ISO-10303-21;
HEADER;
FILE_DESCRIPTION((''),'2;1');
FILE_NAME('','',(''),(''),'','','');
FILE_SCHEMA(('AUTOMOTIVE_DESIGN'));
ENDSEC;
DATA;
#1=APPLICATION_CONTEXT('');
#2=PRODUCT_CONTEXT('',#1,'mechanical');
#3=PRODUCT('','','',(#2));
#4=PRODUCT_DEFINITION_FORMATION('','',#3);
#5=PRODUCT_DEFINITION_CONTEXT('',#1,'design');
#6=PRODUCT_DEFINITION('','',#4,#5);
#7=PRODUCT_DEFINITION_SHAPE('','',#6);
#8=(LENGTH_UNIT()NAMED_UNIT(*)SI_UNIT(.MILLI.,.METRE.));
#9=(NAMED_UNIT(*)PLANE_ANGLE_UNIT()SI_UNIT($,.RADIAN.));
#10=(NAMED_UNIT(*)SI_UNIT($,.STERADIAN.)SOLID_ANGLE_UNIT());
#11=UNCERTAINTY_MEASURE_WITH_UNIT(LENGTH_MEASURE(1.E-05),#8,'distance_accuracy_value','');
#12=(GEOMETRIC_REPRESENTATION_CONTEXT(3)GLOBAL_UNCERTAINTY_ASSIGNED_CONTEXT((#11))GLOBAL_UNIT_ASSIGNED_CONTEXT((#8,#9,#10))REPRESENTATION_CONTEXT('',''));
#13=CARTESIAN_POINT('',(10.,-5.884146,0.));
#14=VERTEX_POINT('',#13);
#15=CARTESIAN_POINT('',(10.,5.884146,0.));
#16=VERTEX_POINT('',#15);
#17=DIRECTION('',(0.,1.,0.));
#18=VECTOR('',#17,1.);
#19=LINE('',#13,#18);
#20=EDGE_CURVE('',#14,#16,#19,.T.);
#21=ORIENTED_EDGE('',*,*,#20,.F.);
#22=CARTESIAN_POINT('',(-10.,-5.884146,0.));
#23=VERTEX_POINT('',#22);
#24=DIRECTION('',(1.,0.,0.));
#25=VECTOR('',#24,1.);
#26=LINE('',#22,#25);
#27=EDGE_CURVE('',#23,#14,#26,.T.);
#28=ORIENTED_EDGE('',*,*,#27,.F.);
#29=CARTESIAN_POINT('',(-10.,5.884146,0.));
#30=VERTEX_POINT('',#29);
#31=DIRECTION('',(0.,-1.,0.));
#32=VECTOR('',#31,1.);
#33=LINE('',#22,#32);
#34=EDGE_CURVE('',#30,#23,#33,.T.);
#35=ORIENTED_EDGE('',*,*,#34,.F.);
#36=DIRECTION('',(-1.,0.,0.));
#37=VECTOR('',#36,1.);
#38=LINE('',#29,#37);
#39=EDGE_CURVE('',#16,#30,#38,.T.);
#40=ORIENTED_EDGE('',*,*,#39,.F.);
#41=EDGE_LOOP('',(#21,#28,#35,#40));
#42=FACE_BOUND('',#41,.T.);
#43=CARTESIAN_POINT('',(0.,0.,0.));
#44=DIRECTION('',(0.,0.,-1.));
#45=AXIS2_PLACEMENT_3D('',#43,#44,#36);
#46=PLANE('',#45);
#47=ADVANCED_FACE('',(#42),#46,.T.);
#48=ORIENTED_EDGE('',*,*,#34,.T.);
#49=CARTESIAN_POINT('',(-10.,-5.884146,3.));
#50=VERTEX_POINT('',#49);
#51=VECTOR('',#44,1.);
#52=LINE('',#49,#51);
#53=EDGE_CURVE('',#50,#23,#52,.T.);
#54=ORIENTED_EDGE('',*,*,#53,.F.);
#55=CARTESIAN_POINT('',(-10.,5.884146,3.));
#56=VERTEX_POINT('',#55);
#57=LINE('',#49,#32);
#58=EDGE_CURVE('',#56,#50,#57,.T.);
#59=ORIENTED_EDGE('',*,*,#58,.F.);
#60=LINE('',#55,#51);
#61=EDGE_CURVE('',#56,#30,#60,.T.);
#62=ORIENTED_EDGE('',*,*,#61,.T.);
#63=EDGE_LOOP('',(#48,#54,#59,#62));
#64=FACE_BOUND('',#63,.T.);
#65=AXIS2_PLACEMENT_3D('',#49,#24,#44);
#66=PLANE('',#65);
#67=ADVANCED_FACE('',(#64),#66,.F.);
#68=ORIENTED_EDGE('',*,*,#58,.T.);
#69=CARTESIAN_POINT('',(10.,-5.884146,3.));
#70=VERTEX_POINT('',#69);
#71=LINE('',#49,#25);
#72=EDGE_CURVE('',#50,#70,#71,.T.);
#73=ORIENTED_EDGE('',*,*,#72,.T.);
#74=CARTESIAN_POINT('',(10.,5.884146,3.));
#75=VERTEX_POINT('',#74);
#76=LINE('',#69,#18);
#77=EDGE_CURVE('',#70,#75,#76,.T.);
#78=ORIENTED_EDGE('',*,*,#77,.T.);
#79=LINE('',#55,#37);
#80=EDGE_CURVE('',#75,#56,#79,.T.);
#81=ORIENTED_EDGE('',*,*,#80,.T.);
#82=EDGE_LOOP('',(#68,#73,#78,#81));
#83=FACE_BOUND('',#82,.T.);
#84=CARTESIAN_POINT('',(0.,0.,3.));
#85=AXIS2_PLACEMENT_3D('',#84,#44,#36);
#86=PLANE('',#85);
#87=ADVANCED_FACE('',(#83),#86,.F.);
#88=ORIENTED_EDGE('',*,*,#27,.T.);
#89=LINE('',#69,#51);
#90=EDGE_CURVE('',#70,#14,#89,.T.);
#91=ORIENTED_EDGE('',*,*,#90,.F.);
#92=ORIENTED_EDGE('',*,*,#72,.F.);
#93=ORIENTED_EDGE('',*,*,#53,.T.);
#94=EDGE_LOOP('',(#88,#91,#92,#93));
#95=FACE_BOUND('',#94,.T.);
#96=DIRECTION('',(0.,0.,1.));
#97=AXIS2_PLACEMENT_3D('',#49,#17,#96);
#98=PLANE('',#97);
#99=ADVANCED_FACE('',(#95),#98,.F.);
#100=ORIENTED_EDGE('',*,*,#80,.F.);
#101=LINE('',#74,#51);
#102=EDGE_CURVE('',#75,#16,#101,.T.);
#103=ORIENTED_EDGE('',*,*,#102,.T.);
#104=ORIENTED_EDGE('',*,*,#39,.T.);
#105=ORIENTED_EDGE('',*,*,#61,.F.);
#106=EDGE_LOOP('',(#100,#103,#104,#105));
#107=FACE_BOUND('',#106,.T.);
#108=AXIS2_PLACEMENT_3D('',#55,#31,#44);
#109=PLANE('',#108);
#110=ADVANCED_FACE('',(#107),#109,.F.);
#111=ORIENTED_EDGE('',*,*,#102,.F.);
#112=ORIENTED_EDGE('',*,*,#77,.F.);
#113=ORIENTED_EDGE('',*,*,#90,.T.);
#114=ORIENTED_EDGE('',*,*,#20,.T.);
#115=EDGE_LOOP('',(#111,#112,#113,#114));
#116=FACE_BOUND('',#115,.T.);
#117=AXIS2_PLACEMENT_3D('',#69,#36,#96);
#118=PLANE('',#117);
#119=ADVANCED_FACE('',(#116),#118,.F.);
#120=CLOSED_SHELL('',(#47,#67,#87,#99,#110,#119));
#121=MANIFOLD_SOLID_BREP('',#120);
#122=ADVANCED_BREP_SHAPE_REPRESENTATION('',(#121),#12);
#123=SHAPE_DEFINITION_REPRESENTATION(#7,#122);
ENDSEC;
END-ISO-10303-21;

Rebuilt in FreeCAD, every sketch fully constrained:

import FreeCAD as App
import Part
import Sketcher

V = App.Vector


def add_polygon(sketch, points):
    """Adds a closed chain of lines whose ends are joined by coincident constraints."""
    first, n = sketch.GeometryCount, len(points)
    for a, b in zip(points, points[1:] + points[:1]):
        sketch.addGeometry(Part.LineSegment(App.Vector(*a, 0), App.Vector(*b, 0)), False)
    for i in range(n):
        sketch.addConstraint(Sketcher.Constraint("Coincident", first + i, 2, first + (i + 1) % n, 1))

doc = App.newDocument("Part")
body = doc.addObject("PartDesign::Body", "Body")

# Sketch on XY plane
sketch1 = body.newObject("Sketcher::SketchObject", "Sketch")
sketch1.AttachmentSupport = (doc.getObject("XY_Plane"), [""])
sketch1.MapMode = "FlatFace"
add_polygon(sketch1, [(-10, 6), (-10, -6), (10, -6), (10, 6)])  # lines 0-3
sketch1.addConstraint(Sketcher.Constraint("Vertical", 0))
sketch1.addConstraint(Sketcher.Constraint("Horizontal", 1))
sketch1.addConstraint(Sketcher.Constraint("Vertical", 2))
sketch1.addConstraint(Sketcher.Constraint("Horizontal", 3))
sketch1.addConstraint(Sketcher.Constraint("Symmetric", 0, 2, 2, 2, -1, 1))
sketch1.addConstraint(Sketcher.Constraint("DistanceX", 1, 1, 1, 2, 20.0))
sketch1.addConstraint(Sketcher.Constraint("DistanceY", 0, 2, 0, 1, 11.768293))
pad1 = body.newObject("PartDesign::Pad", "Pad")
pad1.Profile = sketch1
pad1.Length = 3

doc.recompute()
